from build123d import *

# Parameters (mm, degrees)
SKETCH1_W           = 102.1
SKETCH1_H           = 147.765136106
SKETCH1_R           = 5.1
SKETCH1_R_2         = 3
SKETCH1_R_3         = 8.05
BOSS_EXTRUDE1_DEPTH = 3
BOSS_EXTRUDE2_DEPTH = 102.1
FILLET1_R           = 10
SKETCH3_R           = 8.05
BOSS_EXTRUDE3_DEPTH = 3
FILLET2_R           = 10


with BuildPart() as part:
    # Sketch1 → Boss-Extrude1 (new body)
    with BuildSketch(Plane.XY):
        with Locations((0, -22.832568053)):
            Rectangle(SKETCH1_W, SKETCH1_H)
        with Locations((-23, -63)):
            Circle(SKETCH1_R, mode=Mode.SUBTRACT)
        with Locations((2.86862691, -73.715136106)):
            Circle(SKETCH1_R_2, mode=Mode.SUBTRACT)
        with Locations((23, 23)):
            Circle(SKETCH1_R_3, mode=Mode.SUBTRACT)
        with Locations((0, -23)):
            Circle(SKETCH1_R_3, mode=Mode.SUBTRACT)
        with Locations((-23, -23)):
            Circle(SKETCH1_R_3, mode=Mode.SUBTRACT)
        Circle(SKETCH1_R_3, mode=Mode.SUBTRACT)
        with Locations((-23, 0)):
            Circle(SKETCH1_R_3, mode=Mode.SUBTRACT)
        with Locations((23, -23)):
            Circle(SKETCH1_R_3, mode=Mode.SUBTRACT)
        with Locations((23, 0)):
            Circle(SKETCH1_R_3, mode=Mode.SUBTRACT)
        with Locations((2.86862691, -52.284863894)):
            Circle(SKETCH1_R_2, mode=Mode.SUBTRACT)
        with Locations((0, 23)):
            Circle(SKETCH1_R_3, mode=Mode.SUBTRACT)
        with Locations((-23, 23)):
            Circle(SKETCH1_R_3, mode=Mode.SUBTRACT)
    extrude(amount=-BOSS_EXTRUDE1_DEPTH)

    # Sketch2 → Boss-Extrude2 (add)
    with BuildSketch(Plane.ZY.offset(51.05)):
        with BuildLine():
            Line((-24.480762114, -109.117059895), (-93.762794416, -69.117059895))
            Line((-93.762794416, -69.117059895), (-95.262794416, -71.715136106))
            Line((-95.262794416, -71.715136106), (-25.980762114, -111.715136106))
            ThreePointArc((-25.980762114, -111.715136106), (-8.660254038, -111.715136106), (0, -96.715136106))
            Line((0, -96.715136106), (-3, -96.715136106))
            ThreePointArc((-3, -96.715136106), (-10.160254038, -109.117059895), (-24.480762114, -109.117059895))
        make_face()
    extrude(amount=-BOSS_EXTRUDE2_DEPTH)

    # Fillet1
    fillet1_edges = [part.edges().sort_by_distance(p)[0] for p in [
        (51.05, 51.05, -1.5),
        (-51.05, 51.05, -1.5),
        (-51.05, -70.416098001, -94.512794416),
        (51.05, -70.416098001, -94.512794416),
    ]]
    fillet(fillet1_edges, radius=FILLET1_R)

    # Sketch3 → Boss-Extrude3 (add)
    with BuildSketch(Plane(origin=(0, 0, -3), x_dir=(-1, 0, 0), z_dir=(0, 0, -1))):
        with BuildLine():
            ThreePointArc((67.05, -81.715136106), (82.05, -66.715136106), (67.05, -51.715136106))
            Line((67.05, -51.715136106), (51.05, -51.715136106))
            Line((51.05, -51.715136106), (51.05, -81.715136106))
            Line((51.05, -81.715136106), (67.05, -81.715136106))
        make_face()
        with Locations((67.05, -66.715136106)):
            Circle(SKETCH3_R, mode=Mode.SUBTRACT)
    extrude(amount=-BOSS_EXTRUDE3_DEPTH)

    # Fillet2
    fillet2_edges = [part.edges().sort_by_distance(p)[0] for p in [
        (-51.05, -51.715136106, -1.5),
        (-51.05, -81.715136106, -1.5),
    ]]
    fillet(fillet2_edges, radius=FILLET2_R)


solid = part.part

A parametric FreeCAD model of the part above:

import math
import FreeCAD as App
import Part
import Sketcher

V = App.Vector
Q = App.Units.Quantity


def edges_at(feature, points):
    """Names of the edges that pass closest to the given points."""
    edges = feature.Shape.Edges
    near = lambda p: min(range(len(edges)), key=lambda i: edges[i].distToShape(Part.Vertex(*p))[0])
    return sorted({f"Edge{near(p) + 1}" for p in points})


def add_polygon(sketch, points):
    """Adds a closed chain of lines whose ends are joined by coincident constraints."""
    first, n = sketch.GeometryCount, len(points)
    for a, b in zip(points, points[1:] + points[:1]):
        sketch.addGeometry(Part.LineSegment(App.Vector(*a, 0), App.Vector(*b, 0)), False)
    for i in range(n):
        sketch.addConstraint(Sketcher.Constraint("Coincident", first + i, 2, first + (i + 1) % n, 1))

doc = App.newDocument("Part")
body = doc.addObject("PartDesign::Body", "Body")

# Sketch on XY plane
sketch1 = body.newObject("Sketcher::SketchObject", "Sketch")
sketch1.AttachmentSupport = (doc.getObject("XY_Plane"), [""])
sketch1.MapMode = "FlatFace"
add_polygon(sketch1, [(-51.05, 51.05), (-51.05, -96.715136), (51.05, -96.715136), (51.05, 51.05)])  # lines 0-3
sketch1.addGeometry(Part.Circle(V(-23, -63, 0), V(0, 0, 1), 5.1), False)  # 4
sketch1.addGeometry(Part.Circle(V(-23, -23, 0), V(0, 0, 1), 8.05), False)  # 5
sketch1.addGeometry(Part.Circle(V(0, -23, 0), V(0, 0, 1), 8.05), False)  # 6
sketch1.addGeometry(Part.Circle(V(2.868627, -73.715136, 0), V(0, 0, 1), 3), False)  # 7
sketch1.addGeometry(Part.Circle(V(2.868627, -52.284864, 0), V(0, 0, 1), 3), False)  # 8
sketch1.addGeometry(Part.Circle(V(23, -23, 0), V(0, 0, 1), 8.05), False)  # 9
sketch1.addGeometry(Part.Circle(V(-23, 0, 0), V(0, 0, 1), 8.05), False)  # 10
sketch1.addGeometry(Part.Circle(V(0, 0, 0), V(0, 0, 1), 8.05), False)  # 11
sketch1.addGeometry(Part.Circle(V(-23, 23, 0), V(0, 0, 1), 8.05), False)  # 12
sketch1.addGeometry(Part.Circle(V(0, 23, 0), V(0, 0, 1), 8.05), False)  # 13
sketch1.addGeometry(Part.Circle(V(23, 0, 0), V(0, 0, 1), 8.05), False)  # 14
sketch1.addGeometry(Part.Circle(V(23, 23, 0), V(0, 0, 1), 8.05), False)  # 15
sketch1.addConstraint(Sketcher.Constraint("Vertical", 0))
sketch1.addConstraint(Sketcher.Constraint("Horizontal", 1))
sketch1.addConstraint(Sketcher.Constraint("Vertical", 2))
sketch1.addConstraint(Sketcher.Constraint("Horizontal", 3))
sketch1.addConstraint(Sketcher.Constraint("Coincident", 11, 3, -1, 1))
sketch1.addConstraint(Sketcher.Constraint("Equal", 5, 6))
sketch1.addConstraint(Sketcher.Constraint("Equal", 7, 8))
sketch1.addConstraint(Sketcher.Constraint("Equal", 6, 9))
sketch1.addConstraint(Sketcher.Constraint("Equal", 9, 10))
sketch1.addConstraint(Sketcher.Constraint("Equal", 10, 11))
sketch1.addConstraint(Sketcher.Constraint("Equal", 11, 12))
sketch1.addConstraint(Sketcher.Constraint("Equal", 12, 13))
sketch1.addConstraint(Sketcher.Constraint("Equal", 13, 14))
sketch1.addConstraint(Sketcher.Constraint("Equal", 14, 15))
sketch1.addConstraint(Sketcher.Constraint("Symmetric", 9, 3, 12, 3, -1, 1))
sketch1.addConstraint(Sketcher.Constraint("Symmetric", 6, 3, 13, 3, -1, 1))
sketch1.addConstraint(Sketcher.Constraint("Symmetric", 10, 3, 14, 3, -1, 1))
sketch1.addConstraint(Sketcher.Constraint("Symmetric", 5, 3, 15, 3, -1, 1))
sketch1.addConstraint(Sketcher.Constraint("Symmetric", 5, 3, 9, 3, -2))
sketch1.addConstraint(Sketcher.Constraint("PointOnObject", 6, 3, -2))
sketch1.addConstraint(Sketcher.Constraint("PointOnObject", 10, 3, -1))
sketch1.addConstraint(Sketcher.Constraint("Horizontal", 5, 3, 6, 3))
sketch1.addConstraint(Sketcher.Constraint("Vertical", 4, 3, 5, 3))
sketch1.addConstraint(Sketcher.Constraint("Vertical", 7, 3, 8, 3))
sketch1.addConstraint(Sketcher.Constraint("Vertical", 5, 3, 10, 3))
sketch1.addConstraint(Sketcher.Constraint("Diameter", 7, 6.0))
sketch1.addConstraint(Sketcher.Constraint("Diameter", 4, 10.2))
sketch1.addConstraint(Sketcher.Constraint("Diameter", 5, 16.1))
sketch1.addConstraint(Sketcher.Constraint("DistanceX", 1, 1, 1, 2, 102.1))
sketch1.addConstraint(Sketcher.Constraint("DistanceX", 4, 3, -1, 1, 23.0))
sketch1.addConstraint(Sketcher.Constraint("DistanceY", 4, 3, -1, 1, 63.0))
sketch1.addConstraint(Sketcher.Constraint("DistanceY", 5, 3, -1, 1, 23.0))
sketch1.addConstraint(Sketcher.Constraint("DistanceY", 0, 2, 7, 3, 23.0))
sketch1.addConstraint(Sketcher.Constraint("DistanceX", 0, 2, -1, 1, 51.05))
sketch1.addConstraint(Sketcher.Constraint("DistanceY", -1, 1, 2, 2, 51.05))
sketch1.addConstraint(Sketcher.Constraint("DistanceY", 0, 2, 0, 1, 147.765136))
sketch1.addConstraint(Sketcher.Constraint("DistanceX", -1, 1, 7, 3, 2.868627))
sketch1.addConstraint(Sketcher.Constraint("DistanceY", 8, 3, -1, 1, 52.284864))
pad1 = body.newObject("PartDesign::Pad", "Pad")
pad1.Profile = sketch1
pad1.Length = 3
pad1.Reversed = True

# Sketch on YZ plane
sketch2 = body.newObject("Sketcher::SketchObject", "Sketch001")
sketch2.AttachmentSupport = (doc.getObject("YZ_Plane"), [""])
sketch2.MapMode = "FlatFace"
sketch2.AttachmentOffset = App.Placement(V(0, 0, -51.05), App.Rotation())
sketch2.addGeometry(Part.LineSegment(V(-109.11706, -24.480762, 0), V(-69.11706, -93.762794, 0)), False)
sketch2.addGeometry(Part.LineSegment(V(-69.11706, -93.762794, 0), V(-71.715136, -95.262794, 0)), False)
sketch2.addGeometry(Part.LineSegment(V(-71.715136, -95.262794, 0), V(-111.715136, -25.980762, 0)), False)
sketch2.addGeometry(Part.ArcOfCircle(Part.Circle(V(-96.715136, -17.320508, 0), V(0, 0, 1), 17.320508), math.radians(90), math.radians(210)), False)
sketch2.addGeometry(Part.LineSegment(V(-96.715136, 0, 0), V(-96.715136, -3, 0)), False)
sketch2.addGeometry(Part.ArcOfCircle(Part.Circle(V(-96.715136, -17.320508, 0), V(0, 0, 1), 14.320508), math.radians(90), math.radians(210)), False)
sketch2.addConstraint(Sketcher.Constraint("Coincident", 0, 2, 1, 1))
sketch2.addConstraint(Sketcher.Constraint("Coincident", 1, 2, 2, 1))
sketch2.addConstraint(Sketcher.Constraint("Tangent", 2, 2, 3, 2))
sketch2.addConstraint(Sketcher.Constraint("Coincident", 3, 1, 4, 1))
sketch2.addConstraint(Sketcher.Constraint("Coincident", 4, 2, 5, 1))
sketch2.addConstraint(Sketcher.Constraint("Tangent", 5, 2, 0, 1))
sketch2.addConstraint(Sketcher.Constraint("Vertical", 4))
sketch2.addConstraint(Sketcher.Constraint("Coincident", 5, 3, 3, 3))
sketch2.addConstraint(Sketcher.Constraint("PointOnObject", 3, 1, -1))
sketch2.addConstraint(Sketcher.Constraint("Perpendicular", 0, 1))
sketch2.addConstraint(Sketcher.Constraint("Perpendicular", 1, 2))
sketch2.addConstraint(Sketcher.Constraint("Vertical", 5, 3, 3, 1))
sketch2.addConstraint(Sketcher.Constraint("DistanceY", 4, 2, 4, 1, 3.0))
sketch2.addConstraint(Sketcher.Constraint("Angle", 0, Q("-60 deg")))
sketch2.addConstraint(Sketcher.Constraint("Distance", 0, 80.0))
sketch2.addConstraint(Sketcher.Constraint("DistanceX", 3, 3, 1, 2, 25.0))
sketch2.addConstraint(Sketcher.Constraint("DistanceX", 0, 2, -1, 1, 69.11706))
pad2 = body.newObject("PartDesign::Pad", "Pad001")
pad2.Profile = sketch2
pad2.Length = 102.1
doc.recompute()

fillet = body.newObject("PartDesign::Fillet", "Fillet")
fillet.Base = (pad2, edges_at(pad2, [
    (51.05, 51.05, -1.5),
    (-51.05, 51.05, -1.5),
    (-51.05, -70.416, -94.513),
    (51.05, -70.416, -94.513),
]))
fillet.Radius = 10

# Sketch on XY plane
sketch3 = body.newObject("Sketcher::SketchObject", "Sketch002")
sketch3.AttachmentSupport = (doc.getObject("XY_Plane"), [""])
sketch3.MapMode = "FlatFace"
sketch3.AttachmentOffset = App.Placement(V(0, 0, -3), App.Rotation())
sketch3.addGeometry(Part.ArcOfCircle(Part.Circle(V(-67.05, -66.715136, 0), V(0, 0, 1), 15), math.radians(90), math.radians(270)), False)
sketch3.addGeometry(Part.LineSegment(V(-67.05, -51.715136, 0), V(-51.05, -51.715136, 0)), False)
sketch3.addGeometry(Part.LineSegment(V(-51.05, -51.715136, 0), V(-51.05, -81.715136, 0)), False)
sketch3.addGeometry(Part.LineSegment(V(-51.05, -81.715136, 0), V(-67.05, -81.715136, 0)), False)
sketch3.addGeometry(Part.Circle(V(-67.05, -66.715136, 0), V(0, 0, 1), 8.05), False)
sketch3.addConstraint(Sketcher.Constraint("Tangent", 0, 1, 1, 1))
sketch3.addConstraint(Sketcher.Constraint("Coincident", 1, 2, 2, 1))
sketch3.addConstraint(Sketcher.Constraint("Coincident", 2, 2, 3, 1))
sketch3.addConstraint(Sketcher.Constraint("Tangent", 3, 2, 0, 2))
sketch3.addConstraint(Sketcher.Constraint("Horizontal", 1))
sketch3.addConstraint(Sketcher.Constraint("Vertical", 2))
sketch3.addConstraint(Sketcher.Constraint("Horizontal", 3))
sketch3.addConstraint(Sketcher.Constraint("Coincident", 4, 3, 0, 3))
sketch3.addConstraint(Sketcher.Constraint("Radius", 0, 15.0))
sketch3.addConstraint(Sketcher.Constraint("Diameter", 4, 16.1))
sketch3.addConstraint(Sketcher.Constraint("DistanceX", 1, 1, 1, 2, 16.0))
sketch3.addConstraint(Sketcher.Constraint("DistanceX", 0, 3, -1, 1, 67.05))
sketch3.addConstraint(Sketcher.Constraint("DistanceY", 0, 3, -1, 1, 66.715136))
pad3 = body.newObject("PartDesign::Pad", "Pad002")
pad3.Profile = sketch3
pad3.Length = 3
doc.recompute()

fillet2 = body.newObject("PartDesign::Fillet", "Fillet001")
fillet2.Base = (pad3, edges_at(pad3, [(-51.05, -51.715, -1.5), (-51.05, -81.715, -1.5)]))
fillet2.Radius = 10

doc.recompute()
